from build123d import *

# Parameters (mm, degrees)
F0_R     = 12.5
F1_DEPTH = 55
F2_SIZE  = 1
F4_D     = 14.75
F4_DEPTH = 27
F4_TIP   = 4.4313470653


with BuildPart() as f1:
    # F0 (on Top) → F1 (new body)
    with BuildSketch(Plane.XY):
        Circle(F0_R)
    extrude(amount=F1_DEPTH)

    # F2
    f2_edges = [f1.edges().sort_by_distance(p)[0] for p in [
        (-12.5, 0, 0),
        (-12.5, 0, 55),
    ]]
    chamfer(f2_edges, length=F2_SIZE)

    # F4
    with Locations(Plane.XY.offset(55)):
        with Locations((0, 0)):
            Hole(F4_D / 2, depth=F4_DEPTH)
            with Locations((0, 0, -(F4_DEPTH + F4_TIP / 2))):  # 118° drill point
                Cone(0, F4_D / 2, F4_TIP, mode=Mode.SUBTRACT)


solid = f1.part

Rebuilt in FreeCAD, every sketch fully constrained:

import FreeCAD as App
import Part
import Sketcher

V = App.Vector
Q = App.Units.Quantity


def edges_at(feature, points):
    """Names of the edges that pass closest to the given points."""
    edges = feature.Shape.Edges
    near = lambda p: min(range(len(edges)), key=lambda i: edges[i].distToShape(Part.Vertex(*p))[0])
    return sorted({f"Edge{near(p) + 1}" for p in points})

doc = App.newDocument("Part")
body = doc.addObject("PartDesign::Body", "Body")

sketch1 = body.newObject("Sketcher::SketchObject", "Sketch")
sketch1.AttachmentSupport = (doc.getObject("XY_Plane"), [""])
sketch1.MapMode = "FlatFace"
sketch1.addGeometry(Part.Circle(V(0, 0, 0), V(0, 0, 1), 12), False)
sketch1.addConstraint([
    Sketcher.Constraint("Coincident", 0, 3, -1, 1),
    Sketcher.Constraint("Diameter", 0, Q("25 mm")),
])
pad1 = body.newObject("PartDesign::Pad", "Pad")
pad1.Profile = sketch1
pad1.Length = 55
doc.recompute()

chamfer = body.newObject("PartDesign::Chamfer", "Chamfer")
chamfer.Base = (pad1, edges_at(pad1, [(-12.5, 0, 0), (-12.5, 0, 55)]))
chamfer.Size = 1

sketch2 = body.newObject("Sketcher::SketchObject", "Sketch001")
sketch2.AttachmentSupport = (doc.getObject("XY_Plane"), [""])
sketch2.MapMode = "FlatFace"
sketch2.AttachmentOffset = App.Placement(V(0, 0, 55), App.Rotation())
sketch2.addGeometry(Part.Circle(V(0, 0, 0), V(0, 0, 1), 7), False)
sketch2.addConstraint([
    Sketcher.Constraint("Coincident", 0, 3, -1, 1),
    Sketcher.Constraint("Diameter", 0, Q("14.75 mm")),
])
doc.recompute()
hole = body.newObject("PartDesign::Hole", "Hole")
hole.Profile = sketch2
hole.ThreadType = "None"
hole.Diameter = 14.75
hole.DepthType = "Dimension"
hole.Depth = 27
hole.DrillPoint = "Angled"
hole.DrillPointAngle = 118

doc.recompute()
